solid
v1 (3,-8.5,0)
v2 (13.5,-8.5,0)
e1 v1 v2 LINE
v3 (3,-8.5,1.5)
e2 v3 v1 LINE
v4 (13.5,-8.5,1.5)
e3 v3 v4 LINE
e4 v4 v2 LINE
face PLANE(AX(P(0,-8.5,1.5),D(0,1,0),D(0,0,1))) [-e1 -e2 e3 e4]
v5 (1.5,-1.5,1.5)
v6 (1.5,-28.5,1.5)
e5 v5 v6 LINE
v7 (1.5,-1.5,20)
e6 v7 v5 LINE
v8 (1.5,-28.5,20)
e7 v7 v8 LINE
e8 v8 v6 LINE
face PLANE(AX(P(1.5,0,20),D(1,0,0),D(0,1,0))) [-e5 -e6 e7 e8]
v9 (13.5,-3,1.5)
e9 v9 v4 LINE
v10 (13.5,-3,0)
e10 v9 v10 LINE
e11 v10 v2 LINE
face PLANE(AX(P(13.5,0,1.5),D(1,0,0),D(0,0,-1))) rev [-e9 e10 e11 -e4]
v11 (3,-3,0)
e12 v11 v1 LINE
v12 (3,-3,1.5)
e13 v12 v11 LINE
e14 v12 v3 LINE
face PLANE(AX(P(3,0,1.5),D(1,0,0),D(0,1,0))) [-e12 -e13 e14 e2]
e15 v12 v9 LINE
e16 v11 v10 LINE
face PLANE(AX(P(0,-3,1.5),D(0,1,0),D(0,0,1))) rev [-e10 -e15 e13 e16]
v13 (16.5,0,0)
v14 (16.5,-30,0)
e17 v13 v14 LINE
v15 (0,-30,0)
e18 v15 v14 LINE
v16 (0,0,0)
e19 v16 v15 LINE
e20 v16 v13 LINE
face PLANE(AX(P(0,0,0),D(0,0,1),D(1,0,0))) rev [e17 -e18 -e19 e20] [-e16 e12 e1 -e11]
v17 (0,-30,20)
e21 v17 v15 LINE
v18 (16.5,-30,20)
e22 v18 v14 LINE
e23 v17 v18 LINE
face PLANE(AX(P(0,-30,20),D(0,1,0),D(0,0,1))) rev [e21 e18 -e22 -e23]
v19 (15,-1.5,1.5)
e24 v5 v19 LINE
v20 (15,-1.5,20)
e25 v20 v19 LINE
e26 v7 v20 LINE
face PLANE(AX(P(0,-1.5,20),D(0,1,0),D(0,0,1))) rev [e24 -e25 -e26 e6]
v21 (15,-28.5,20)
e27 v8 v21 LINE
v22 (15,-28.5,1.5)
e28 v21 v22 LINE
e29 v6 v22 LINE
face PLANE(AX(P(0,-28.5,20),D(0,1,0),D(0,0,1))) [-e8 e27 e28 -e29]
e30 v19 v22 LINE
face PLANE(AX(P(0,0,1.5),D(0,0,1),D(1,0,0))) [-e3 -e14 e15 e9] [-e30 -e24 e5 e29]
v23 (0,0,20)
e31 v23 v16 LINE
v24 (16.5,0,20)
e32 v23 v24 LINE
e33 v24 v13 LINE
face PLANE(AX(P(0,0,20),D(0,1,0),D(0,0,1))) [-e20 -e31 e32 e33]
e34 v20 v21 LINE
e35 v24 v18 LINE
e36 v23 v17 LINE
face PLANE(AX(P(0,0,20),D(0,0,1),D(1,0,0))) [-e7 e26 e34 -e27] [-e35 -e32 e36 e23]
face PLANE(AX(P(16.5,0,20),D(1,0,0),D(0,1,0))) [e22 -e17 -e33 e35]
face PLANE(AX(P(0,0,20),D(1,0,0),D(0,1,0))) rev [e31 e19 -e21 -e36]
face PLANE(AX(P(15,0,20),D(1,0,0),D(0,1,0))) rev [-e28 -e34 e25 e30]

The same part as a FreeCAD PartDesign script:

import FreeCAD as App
import Part
import Sketcher
from FreeCAD import Vector


def add_polygon(sketch, points):
    """Adds a closed chain of lines whose ends are joined by coincident constraints."""
    first, n = sketch.GeometryCount, len(points)
    for a, b in zip(points, points[1:] + points[:1]):
        sketch.addGeometry(Part.LineSegment(App.Vector(*a, 0), App.Vector(*b, 0)), False)
    for i in range(n):
        sketch.addConstraint(Sketcher.Constraint("Coincident", first + i, 2, first + (i + 1) % n, 1))

doc = App.newDocument("Part")
body = doc.addObject("PartDesign::Body", "Body")

# Sketch on XY plane
sketch1 = body.newObject("Sketcher::SketchObject", "Sketch")
sketch1.AttachmentSupport = (doc.getObject("XY_Plane"), [""])
sketch1.MapMode = "FlatFace"
add_polygon(sketch1, [(2, -2), (2, -28), (15, -28), (15, -2)])  # lines 0-3
add_polygon(sketch1, [(14, -8), (3, -8), (3, -3), (14, -3)])  # lines 4-7
sketch1.addConstraint([
    Sketcher.Constraint("Vertical", 0),
    Sketcher.Constraint("Horizontal", 1),
    Sketcher.Constraint("Vertical", 2),
    Sketcher.Constraint("Horizontal", 3),
    Sketcher.Constraint("Horizontal", 4),
    Sketcher.Constraint("Vertical", 5),
    Sketcher.Constraint("Horizontal", 6),
    Sketcher.Constraint("Vertical", 7),
    Sketcher.Constraint("DistanceY", 0, 2, 0, 1, 27.0),
    Sketcher.Constraint("DistanceX", 1, 1, 1, 2, 13.5),
    Sketcher.Constraint("DistanceX", 4, 2, 4, 1, 10.5),
    Sketcher.Constraint("DistanceY", 5, 1, 5, 2, 5.5),
    Sketcher.Constraint("DistanceX", -1, 1, 1, 2, 15.0),
    Sketcher.Constraint("DistanceX", -1, 1, 4, 2, 3.0),
    Sketcher.Constraint("DistanceY", 5, 2, -1, 1, 3.0),
    Sketcher.Constraint("DistanceY", 4, 2, 3, 2, 7.0),
])
pad1 = body.newObject("PartDesign::Pad", "Pad")
pad1.Profile = sketch1
pad1.Length = 1.5

# Sketch on XY plane
sketch2 = body.newObject("Sketcher::SketchObject", "Sketch001")
sketch2.AttachmentSupport = (doc.getObject("XY_Plane"), [""])
sketch2.MapMode = "FlatFace"
add_polygon(sketch2, [(0, 0), (0, -30), (16, -30), (16, 0)])  # lines 0-3
add_polygon(sketch2, [(15, -28), (2, -28), (2, -2), (15, -2)])  # lines 4-7
sketch2.addConstraint([
    Sketcher.Constraint("Vertical", 0),
    Sketcher.Constraint("Horizontal", 1),
    Sketcher.Constraint("Vertical", 2),
    Sketcher.Constraint("Horizontal", 3),
    Sketcher.Constraint("Horizontal", 4),
    Sketcher.Constraint("Vertical", 5),
    Sketcher.Constraint("Horizontal", 6),
    Sketcher.Constraint("Vertical", 7),
    Sketcher.Constraint("Coincident", 3, 2, -1, 1),
    Sketcher.Constraint("DistanceY", 0, 2, 0, 1, 30.0),
    Sketcher.Constraint("DistanceY", 5, 1, 5, 2, 27.0),
    Sketcher.Constraint("DistanceX", 1, 1, 1, 2, 16.5),
    Sketcher.Constraint("DistanceX", 4, 2, 4, 1, 13.5),
    Sketcher.Constraint("DistanceX", -1, 1, 6, 2, 15.0),
    Sketcher.Constraint("DistanceY", 4, 2, -1, 1, 28.5),
])
pad2 = body.newObject("PartDesign::Pad", "Pad001")
pad2.Profile = sketch2
pad2.Length = 20

doc.recompute()
